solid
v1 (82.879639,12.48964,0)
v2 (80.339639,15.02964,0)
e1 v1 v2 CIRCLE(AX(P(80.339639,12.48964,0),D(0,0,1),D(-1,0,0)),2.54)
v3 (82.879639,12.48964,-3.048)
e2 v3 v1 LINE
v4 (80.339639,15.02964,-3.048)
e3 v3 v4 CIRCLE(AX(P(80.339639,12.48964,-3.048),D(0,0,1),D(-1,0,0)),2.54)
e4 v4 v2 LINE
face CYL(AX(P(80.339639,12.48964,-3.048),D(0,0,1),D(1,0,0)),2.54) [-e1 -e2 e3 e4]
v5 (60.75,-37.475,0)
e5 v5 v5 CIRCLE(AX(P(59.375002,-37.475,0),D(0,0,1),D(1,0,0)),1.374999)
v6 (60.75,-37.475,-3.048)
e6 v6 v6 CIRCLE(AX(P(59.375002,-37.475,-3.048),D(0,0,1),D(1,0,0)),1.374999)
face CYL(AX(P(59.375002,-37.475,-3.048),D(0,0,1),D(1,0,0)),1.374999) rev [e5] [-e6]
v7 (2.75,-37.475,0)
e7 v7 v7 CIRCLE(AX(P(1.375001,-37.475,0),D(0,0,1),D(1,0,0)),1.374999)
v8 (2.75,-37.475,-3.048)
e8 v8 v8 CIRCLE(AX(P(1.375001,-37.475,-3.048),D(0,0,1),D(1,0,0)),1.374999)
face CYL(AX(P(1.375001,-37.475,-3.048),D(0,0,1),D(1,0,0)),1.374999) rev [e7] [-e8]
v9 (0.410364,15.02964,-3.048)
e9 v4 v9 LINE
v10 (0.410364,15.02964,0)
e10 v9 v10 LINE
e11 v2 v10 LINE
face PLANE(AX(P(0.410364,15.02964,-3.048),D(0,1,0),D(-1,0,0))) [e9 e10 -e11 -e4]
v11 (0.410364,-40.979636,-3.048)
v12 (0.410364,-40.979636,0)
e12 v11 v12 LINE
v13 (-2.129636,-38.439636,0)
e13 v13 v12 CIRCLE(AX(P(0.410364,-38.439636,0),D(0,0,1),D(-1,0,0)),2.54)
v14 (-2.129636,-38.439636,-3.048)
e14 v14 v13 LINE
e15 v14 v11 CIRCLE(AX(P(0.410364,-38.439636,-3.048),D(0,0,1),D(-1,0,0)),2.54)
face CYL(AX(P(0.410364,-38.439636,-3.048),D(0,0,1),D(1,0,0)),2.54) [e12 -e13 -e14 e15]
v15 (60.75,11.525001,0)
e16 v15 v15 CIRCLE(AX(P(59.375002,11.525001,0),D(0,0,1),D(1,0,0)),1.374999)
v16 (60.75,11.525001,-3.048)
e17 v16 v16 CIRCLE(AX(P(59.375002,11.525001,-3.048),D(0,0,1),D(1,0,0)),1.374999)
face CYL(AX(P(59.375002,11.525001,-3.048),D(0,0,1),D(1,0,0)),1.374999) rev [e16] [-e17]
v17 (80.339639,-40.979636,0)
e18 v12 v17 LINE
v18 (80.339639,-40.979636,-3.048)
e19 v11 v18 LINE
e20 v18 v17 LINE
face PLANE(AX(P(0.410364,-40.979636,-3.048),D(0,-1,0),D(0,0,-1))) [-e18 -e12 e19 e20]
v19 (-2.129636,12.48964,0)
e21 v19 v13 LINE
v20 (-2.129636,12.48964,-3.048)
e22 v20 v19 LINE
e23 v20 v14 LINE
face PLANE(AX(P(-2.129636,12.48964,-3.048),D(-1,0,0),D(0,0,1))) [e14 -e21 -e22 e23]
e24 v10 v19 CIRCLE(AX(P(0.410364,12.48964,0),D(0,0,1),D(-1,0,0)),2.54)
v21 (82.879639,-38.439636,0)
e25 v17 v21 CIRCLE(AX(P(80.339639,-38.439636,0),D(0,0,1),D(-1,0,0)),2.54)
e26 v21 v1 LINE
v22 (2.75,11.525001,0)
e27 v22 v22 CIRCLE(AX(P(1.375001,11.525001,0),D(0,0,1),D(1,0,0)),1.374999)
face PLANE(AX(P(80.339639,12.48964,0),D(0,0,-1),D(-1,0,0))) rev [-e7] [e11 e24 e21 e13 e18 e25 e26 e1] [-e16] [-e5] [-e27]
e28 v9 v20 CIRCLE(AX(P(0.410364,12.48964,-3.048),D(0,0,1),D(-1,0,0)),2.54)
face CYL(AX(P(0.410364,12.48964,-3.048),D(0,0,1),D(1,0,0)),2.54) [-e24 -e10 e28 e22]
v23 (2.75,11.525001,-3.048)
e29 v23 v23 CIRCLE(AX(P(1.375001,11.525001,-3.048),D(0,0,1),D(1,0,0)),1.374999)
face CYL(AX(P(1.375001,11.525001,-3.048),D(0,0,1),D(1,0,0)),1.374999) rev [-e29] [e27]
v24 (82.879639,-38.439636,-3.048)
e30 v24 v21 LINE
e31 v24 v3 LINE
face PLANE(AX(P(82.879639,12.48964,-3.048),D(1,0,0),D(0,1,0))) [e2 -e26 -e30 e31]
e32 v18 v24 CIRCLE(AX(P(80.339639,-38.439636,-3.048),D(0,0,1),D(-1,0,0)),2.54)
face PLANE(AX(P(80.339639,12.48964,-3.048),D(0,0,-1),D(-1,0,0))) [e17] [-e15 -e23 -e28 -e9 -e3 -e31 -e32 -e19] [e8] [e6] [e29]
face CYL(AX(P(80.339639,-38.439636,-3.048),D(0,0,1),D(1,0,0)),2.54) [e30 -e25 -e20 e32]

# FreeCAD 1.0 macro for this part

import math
import FreeCAD as App
import Part
import Sketcher
Q = App.Units.Quantity

doc = App.newDocument("Part")
body = doc.addObject("PartDesign::Body", "Body")

# Sketch on XY plane
sketch1 = body.newObject("Sketcher::SketchObject", "Sketch")
sketch1.AttachmentSupport = (doc.getObject("XY_Plane"), [""])
sketch1.MapMode = "FlatFace"
sketch1.addGeometry([
    Part.LineSegment(App.Vector(80.3, 15, 0), App.Vector(0.4, 15, 0)),  # 0
    Part.ArcOfCircle(Part.Circle(App.Vector(0.4, 12.5, 0), App.Vector(0, 0, 1), 2.5), math.radians(90), math.radians(180)),  # 1
    Part.LineSegment(App.Vector(-2.1, 12.5, 0), App.Vector(-2.1, -38.4, 0)),  # 2
    Part.ArcOfCircle(Part.Circle(App.Vector(0.4, -38.4, 0), App.Vector(0, 0, 1), 2.5), math.radians(-180), math.radians(-90)),  # 3
    Part.LineSegment(App.Vector(0.4, -41, 0), App.Vector(80.3, -41, 0)),  # 4
    Part.ArcOfCircle(Part.Circle(App.Vector(80.3, -38.4, 0), App.Vector(0, 0, 1), 2.5), math.radians(-90), math.radians(0)),  # 5
    Part.LineSegment(App.Vector(82.9, -38.4, 0), App.Vector(82.9, 12.5, 0)),  # 6
    Part.ArcOfCircle(Part.Circle(App.Vector(80.3, 12.5, 0), App.Vector(0, 0, 1), 2.5), math.radians(0), math.radians(90)),  # 7
    Part.Circle(App.Vector(59.4, -37.5, 0), App.Vector(0, 0, 1), 1.4),  # 8
    Part.Circle(App.Vector(1.4, -37.5, 0), App.Vector(0, 0, 1), 1.4),  # 9
    Part.Circle(App.Vector(59.4, 11.5, 0), App.Vector(0, 0, 1), 1.4),  # 10
    Part.Circle(App.Vector(1.4, 11.5, 0), App.Vector(0, 0, 1), 1.4),  # 11
], False)
sketch1.addConstraint([
    Sketcher.Constraint("Tangent", 0, 2, 1, 1),
    Sketcher.Constraint("Tangent", 1, 2, 2, 1),
    Sketcher.Constraint("Tangent", 2, 2, 3, 1),
    Sketcher.Constraint("Tangent", 3, 2, 4, 1),
    Sketcher.Constraint("Tangent", 4, 2, 5, 1),
    Sketcher.Constraint("Tangent", 5, 2, 6, 1),
    Sketcher.Constraint("Tangent", 6, 2, 7, 1),
    Sketcher.Constraint("Tangent", 7, 2, 0, 1),
    Sketcher.Constraint("Horizontal", 0),
    Sketcher.Constraint("Vertical", 2),
    Sketcher.Constraint("Horizontal", 4),
    Sketcher.Constraint("Vertical", 6),
    Sketcher.Constraint("Equal", 1, 3),
    Sketcher.Constraint("Equal", 3, 5),
    Sketcher.Constraint("Equal", 5, 7),
    Sketcher.Constraint("Equal", 8, 9),
    Sketcher.Constraint("Equal", 9, 10),
    Sketcher.Constraint("Equal", 10, 11),
    Sketcher.Constraint("Horizontal", 8, 3, 9, 3),
    Sketcher.Constraint("Horizontal", 10, 3, 11, 3),
    Sketcher.Constraint("Vertical", 8, 3, 10, 3),
    Sketcher.Constraint("Vertical", 9, 3, 11, 3),
    Sketcher.Constraint("Radius", 1, Q("0.1 in")),
    Sketcher.Constraint("Diameter", 8, Q("2.749997 mm")),
    Sketcher.Constraint("DistanceX", -1, 1, 8, 3, Q("59.375002 mm")),
    Sketcher.Constraint("DistanceY", 8, 3, -1, 1, Q("37.475 mm")),
    Sketcher.Constraint("DistanceX", -1, 1, 9, 3, Q("1.375001 mm")),
    Sketcher.Constraint("DistanceY", -1, 1, 10, 3, Q("11.525001 mm")),
    Sketcher.Constraint("DistanceX", 0, 2, 0, 1, Q("79.929275 mm")),
    Sketcher.Constraint("DistanceY", 2, 2, 2, 1, Q("50.929276 mm")),
    Sketcher.Constraint("DistanceY", -1, 1, 1, 3, Q("12.48964 mm")),
    Sketcher.Constraint("DistanceX", -1, 1, 5, 3, Q("80.339639 mm")),
])
pad1 = body.newObject("PartDesign::Pad", "Pad")
pad1.Profile = sketch1
pad1.Length = Q("0.12 in")
pad1.Reversed = True

doc.recompute()
